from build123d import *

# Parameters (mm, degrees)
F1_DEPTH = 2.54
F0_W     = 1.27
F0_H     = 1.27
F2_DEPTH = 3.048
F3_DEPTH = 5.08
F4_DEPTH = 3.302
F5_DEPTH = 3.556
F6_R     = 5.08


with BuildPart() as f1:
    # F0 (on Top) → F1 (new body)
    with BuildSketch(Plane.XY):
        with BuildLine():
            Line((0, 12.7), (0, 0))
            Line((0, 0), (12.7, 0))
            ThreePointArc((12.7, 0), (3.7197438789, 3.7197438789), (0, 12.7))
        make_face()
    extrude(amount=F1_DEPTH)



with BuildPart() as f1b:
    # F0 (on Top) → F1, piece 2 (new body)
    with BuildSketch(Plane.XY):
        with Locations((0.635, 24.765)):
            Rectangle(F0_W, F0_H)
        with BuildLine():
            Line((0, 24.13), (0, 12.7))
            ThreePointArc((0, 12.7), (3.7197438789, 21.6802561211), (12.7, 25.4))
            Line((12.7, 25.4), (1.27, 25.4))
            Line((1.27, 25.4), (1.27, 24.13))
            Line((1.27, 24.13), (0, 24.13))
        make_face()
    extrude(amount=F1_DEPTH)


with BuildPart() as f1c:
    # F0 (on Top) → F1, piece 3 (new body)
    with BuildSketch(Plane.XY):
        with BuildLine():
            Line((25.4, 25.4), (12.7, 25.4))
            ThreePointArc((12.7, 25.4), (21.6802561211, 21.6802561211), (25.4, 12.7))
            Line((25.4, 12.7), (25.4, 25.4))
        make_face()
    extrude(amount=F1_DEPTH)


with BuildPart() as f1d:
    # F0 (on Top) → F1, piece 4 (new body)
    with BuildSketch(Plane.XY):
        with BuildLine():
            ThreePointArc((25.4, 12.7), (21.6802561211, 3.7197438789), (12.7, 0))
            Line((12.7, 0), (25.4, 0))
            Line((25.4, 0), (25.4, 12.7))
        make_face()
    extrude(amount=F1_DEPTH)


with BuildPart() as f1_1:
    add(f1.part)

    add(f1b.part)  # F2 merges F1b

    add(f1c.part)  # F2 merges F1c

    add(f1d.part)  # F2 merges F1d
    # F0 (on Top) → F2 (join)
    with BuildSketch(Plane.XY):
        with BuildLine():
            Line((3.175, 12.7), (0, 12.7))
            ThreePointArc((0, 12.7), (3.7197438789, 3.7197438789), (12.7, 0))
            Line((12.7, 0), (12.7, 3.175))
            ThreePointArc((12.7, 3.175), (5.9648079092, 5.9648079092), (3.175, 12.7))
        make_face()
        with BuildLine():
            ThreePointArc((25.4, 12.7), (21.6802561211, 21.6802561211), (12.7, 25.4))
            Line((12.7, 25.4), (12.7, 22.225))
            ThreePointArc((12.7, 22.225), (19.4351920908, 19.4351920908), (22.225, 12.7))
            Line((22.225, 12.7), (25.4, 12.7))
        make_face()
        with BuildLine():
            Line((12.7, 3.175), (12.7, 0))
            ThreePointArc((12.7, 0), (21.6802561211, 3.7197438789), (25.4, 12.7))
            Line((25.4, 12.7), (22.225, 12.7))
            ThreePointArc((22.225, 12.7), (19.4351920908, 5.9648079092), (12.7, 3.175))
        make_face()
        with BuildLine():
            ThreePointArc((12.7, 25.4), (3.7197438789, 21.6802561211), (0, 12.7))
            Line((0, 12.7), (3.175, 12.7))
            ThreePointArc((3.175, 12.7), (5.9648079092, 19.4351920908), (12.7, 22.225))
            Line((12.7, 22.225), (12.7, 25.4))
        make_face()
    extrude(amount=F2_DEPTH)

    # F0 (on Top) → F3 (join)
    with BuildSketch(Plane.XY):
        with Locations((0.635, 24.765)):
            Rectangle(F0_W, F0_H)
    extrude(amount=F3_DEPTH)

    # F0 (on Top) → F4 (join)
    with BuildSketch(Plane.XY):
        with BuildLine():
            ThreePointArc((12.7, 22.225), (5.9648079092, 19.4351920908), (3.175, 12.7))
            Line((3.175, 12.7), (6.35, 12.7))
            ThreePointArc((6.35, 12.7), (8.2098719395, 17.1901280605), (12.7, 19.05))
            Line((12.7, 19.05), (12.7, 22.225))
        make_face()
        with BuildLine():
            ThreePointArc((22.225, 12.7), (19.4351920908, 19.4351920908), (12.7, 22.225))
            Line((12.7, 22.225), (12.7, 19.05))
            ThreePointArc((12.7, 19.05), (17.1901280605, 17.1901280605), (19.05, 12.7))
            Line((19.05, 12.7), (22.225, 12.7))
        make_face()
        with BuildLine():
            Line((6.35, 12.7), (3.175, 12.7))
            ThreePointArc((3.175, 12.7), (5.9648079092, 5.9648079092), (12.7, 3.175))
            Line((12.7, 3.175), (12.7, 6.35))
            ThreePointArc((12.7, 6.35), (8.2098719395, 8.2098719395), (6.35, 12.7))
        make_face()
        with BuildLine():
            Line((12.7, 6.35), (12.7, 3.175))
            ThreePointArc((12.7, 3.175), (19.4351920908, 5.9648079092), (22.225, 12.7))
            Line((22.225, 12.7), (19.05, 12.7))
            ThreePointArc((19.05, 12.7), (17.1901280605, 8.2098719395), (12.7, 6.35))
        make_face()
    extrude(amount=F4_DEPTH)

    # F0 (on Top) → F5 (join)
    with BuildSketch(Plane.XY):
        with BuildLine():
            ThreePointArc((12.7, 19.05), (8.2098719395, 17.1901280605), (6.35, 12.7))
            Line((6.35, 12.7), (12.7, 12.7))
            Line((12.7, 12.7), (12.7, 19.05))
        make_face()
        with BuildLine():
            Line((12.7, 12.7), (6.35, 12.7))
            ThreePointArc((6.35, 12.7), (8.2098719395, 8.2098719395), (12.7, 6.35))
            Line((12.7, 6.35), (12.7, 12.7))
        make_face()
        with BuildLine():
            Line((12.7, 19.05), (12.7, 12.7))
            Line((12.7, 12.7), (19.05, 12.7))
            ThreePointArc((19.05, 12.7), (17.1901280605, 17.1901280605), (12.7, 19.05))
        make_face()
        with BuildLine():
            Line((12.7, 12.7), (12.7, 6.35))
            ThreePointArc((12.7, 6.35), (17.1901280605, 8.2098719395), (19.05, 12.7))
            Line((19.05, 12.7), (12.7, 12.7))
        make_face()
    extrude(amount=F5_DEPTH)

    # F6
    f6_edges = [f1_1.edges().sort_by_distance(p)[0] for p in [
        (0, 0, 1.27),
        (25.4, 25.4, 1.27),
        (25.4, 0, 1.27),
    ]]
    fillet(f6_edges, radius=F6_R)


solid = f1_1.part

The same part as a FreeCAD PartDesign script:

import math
import FreeCAD as App
import Part
import Sketcher

V = App.Vector
Q = App.Units.Quantity


def edges_at(feature, points):
    """Names of the edges that pass closest to the given points."""
    edges = feature.Shape.Edges
    near = lambda p: min(range(len(edges)), key=lambda i: edges[i].distToShape(Part.Vertex(*p))[0])
    return sorted({f"Edge{near(p) + 1}" for p in points})

doc = App.newDocument("Part")
params = doc.addObject("Spreadsheet::Sheet", "Params")
for row, (alias, value) in enumerate([
    ("sketch1_radius", "0.5 in"),
    ("pad1_length", "0.1 in"),
    ("sketch2_radius", "0.5 in"),
    ("pad2_length", "0.1 in"),
    ("sketch3_radius", "0.5 in"),
    ("pad3_length", "0.1 in"),
    ("sketch4_radius", "0.5 in"),
    ("pad4_length", "0.1 in"),
    ("sketch5_radius", "0.5 in"),
    ("sketch5_radius2", "0.375 in"),
    ("pad5_length", "0.12 in"),
    ("sketch6_width", "0.05 in"),
    ("pad6_length", "0.2 in"),
    ("sketch7_radius", "0.25 in"),
    ("sketch7_radius2", "0.375 in"),
    ("pad7_length", "0.13 in"),
    ("sketch8_radius", "0.25 in"),
    ("pad8_length", "0.14 in"),
    ("fillet_radius", "0.2 in"),
], start=1):
    params.set(f"A{row}", alias)
    params.set(f"B{row}", "=" + value)
    params.setAlias(f"B{row}", alias)

body = doc.addObject("PartDesign::Body", "Body")

# Sketch on XY plane
sketch1 = body.newObject("Sketcher::SketchObject", "Sketch")
sketch1.AttachmentSupport = (doc.getObject("XY_Plane"), [""])
sketch1.MapMode = "FlatFace"
sketch1.addGeometry([
    Part.LineSegment(V(0, 13, 0), V(0, 0, 0)),
    Part.LineSegment(V(0, 0, 0), V(13, 0, 0)),
    Part.ArcOfCircle(Part.Circle(V(13, 13, 0), V(0, 0, 1), 13), math.radians(180), math.radians(270)),
], False)
sketch1.addConstraint([
    Sketcher.Constraint("Coincident", 0, 2, 1, 1),
    Sketcher.Constraint("Tangent", 1, 2, 2, 2),
    Sketcher.Constraint("Tangent", 2, 1, 0, 1),
    Sketcher.Constraint("Vertical", 0),
    Sketcher.Constraint("Horizontal", 1),
    Sketcher.Constraint("Coincident", 0, 2, -1, 1),
    Sketcher.Constraint("Radius", 2, Q("0.5 in")),
])
sketch1.setExpression("Constraints[6]", "Params.sketch1_radius")
pad1 = body.newObject("PartDesign::Pad", "Pad")
pad1.Profile = sketch1
pad1.setExpression("Length", "Params.pad1_length")
body2 = doc.addObject("PartDesign::Body", "Body001")

# Sketch on XY plane
sketch2 = body2.newObject("Sketcher::SketchObject", "Sketch001")
sketch2.AttachmentSupport = (doc.getObject("XY_Plane001"), [""])
sketch2.MapMode = "FlatFace"
sketch2.addGeometry([
    Part.LineSegment(V(0, 25, 0), V(0, 13, 0)),
    Part.ArcOfCircle(Part.Circle(V(13, 13, 0), V(0, 0, 1), 13), math.radians(90), math.radians(180)),
    Part.LineSegment(V(13, 25, 0), V(0, 25, 0)),
], False)
sketch2.addConstraint([
    Sketcher.Constraint("Tangent", 0, 2, 1, 2),
    Sketcher.Constraint("Tangent", 1, 1, 2, 1),
    Sketcher.Constraint("Coincident", 2, 2, 0, 1),
    Sketcher.Constraint("Vertical", 0),
    Sketcher.Constraint("Horizontal", 2),
    Sketcher.Constraint("PointOnObject", 0, 2, -2),
    Sketcher.Constraint("Radius", 1, Q("0.5 in")),
    Sketcher.Constraint("DistanceY", -1, 1, 1, 1, Q("1 in")),
])
sketch2.setExpression("Constraints[6]", "Params.sketch2_radius")
pad2 = body2.newObject("PartDesign::Pad", "Pad001")
pad2.Profile = sketch2
pad2.setExpression("Length", "Params.pad2_length")
body3 = doc.addObject("PartDesign::Body", "Body002")

# Sketch on XY plane
sketch3 = body3.newObject("Sketcher::SketchObject", "Sketch002")
sketch3.AttachmentSupport = (doc.getObject("XY_Plane002"), [""])
sketch3.MapMode = "FlatFace"
sketch3.addGeometry([
    Part.LineSegment(V(25, 25, 0), V(13, 25, 0)),
    Part.ArcOfCircle(Part.Circle(V(13, 13, 0), V(0, 0, 1), 13), math.radians(0), math.radians(90)),
    Part.LineSegment(V(25, 13, 0), V(25, 25, 0)),
], False)
sketch3.addConstraint([
    Sketcher.Constraint("Tangent", 0, 2, 1, 2),
    Sketcher.Constraint("Tangent", 1, 1, 2, 1),
    Sketcher.Constraint("Coincident", 2, 2, 0, 1),
    Sketcher.Constraint("Horizontal", 0),
    Sketcher.Constraint("Vertical", 2),
    Sketcher.Constraint("Radius", 1, Q("0.5 in")),
    Sketcher.Constraint("DistanceY", -1, 1, 0, 2, Q("1 in")),
    Sketcher.Constraint("DistanceX", -1, 1, 1, 1, Q("1 in")),
])
sketch3.setExpression("Constraints[5]", "Params.sketch3_radius")
pad3 = body3.newObject("PartDesign::Pad", "Pad002")
pad3.Profile = sketch3
pad3.setExpression("Length", "Params.pad3_length")
body4 = doc.addObject("PartDesign::Body", "Body003")

# Sketch on XY plane
sketch4 = body4.newObject("Sketcher::SketchObject", "Sketch003")
sketch4.AttachmentSupport = (doc.getObject("XY_Plane003"), [""])
sketch4.MapMode = "FlatFace"
sketch4.addGeometry([
    Part.ArcOfCircle(Part.Circle(V(13, 13, 0), V(0, 0, 1), 13), math.radians(-90), math.radians(0)),
    Part.LineSegment(V(13, 0, 0), V(25, 0, 0)),
    Part.LineSegment(V(25, 0, 0), V(25, 13, 0)),
], False)
sketch4.addConstraint([
    Sketcher.Constraint("Tangent", 0, 1, 1, 1),
    Sketcher.Constraint("Coincident", 1, 2, 2, 1),
    Sketcher.Constraint("Tangent", 2, 2, 0, 2),
    Sketcher.Constraint("Horizontal", 1),
    Sketcher.Constraint("Vertical", 2),
    Sketcher.Constraint("PointOnObject", 0, 1, -1),
    Sketcher.Constraint("Radius", 0, Q("0.5 in")),
    Sketcher.Constraint("DistanceX", -1, 1, 1, 2, Q("1 in")),
])
sketch4.setExpression("Constraints[6]", "Params.sketch4_radius")
pad4 = body4.newObject("PartDesign::Pad", "Pad003")
pad4.Profile = sketch4
pad4.setExpression("Length", "Params.pad4_length")
body.AllowCompound = True
doc.recompute()

boolean = body.newObject("PartDesign::Boolean", "Boolean")
boolean.Type = "Fuse"
boolean.addObjects([body2])
doc.recompute()

boolean2 = body.newObject("PartDesign::Boolean", "Boolean001")
boolean2.Type = "Fuse"
boolean2.addObjects([body3])
doc.recompute()

boolean3 = body.newObject("PartDesign::Boolean", "Boolean002")
boolean3.Type = "Fuse"
boolean3.addObjects([body4])

# Sketch on XY plane
sketch5 = body.newObject("Sketcher::SketchObject", "Sketch004")
sketch5.AttachmentSupport = (doc.getObject("XY_Plane"), [""])
sketch5.MapMode = "FlatFace"
sketch5.addGeometry([
    Part.ArcOfCircle(Part.Circle(V(13, 13, 0), V(0, 0, 1), 13), math.radians(180), math.radians(270)),  # 0
    Part.ArcOfCircle(Part.Circle(V(13, 13, 0), V(0, 0, 1), 13), math.radians(-90), math.radians(0)),  # 1
    Part.ArcOfCircle(Part.Circle(V(13, 13, 0), V(0, 0, 1), 13), math.radians(0), math.radians(90)),  # 2
    Part.ArcOfCircle(Part.Circle(V(13, 13, 0), V(0, 0, 1), 13), math.radians(90), math.radians(180)),  # 3
    Part.ArcOfCircle(Part.Circle(V(13, 13, 0), V(0, 0, 1), 10), math.radians(0), math.radians(90)),  # 4
    Part.ArcOfCircle(Part.Circle(V(13, 13, 0), V(0, 0, 1), 10), math.radians(-90), math.radians(0)),  # 5
    Part.ArcOfCircle(Part.Circle(V(13, 13, 0), V(0, 0, 1), 10), math.radians(180), math.radians(270)),  # 6
    Part.ArcOfCircle(Part.Circle(V(13, 13, 0), V(0, 0, 1), 10), math.radians(90), math.radians(180)),  # 7
], False)
sketch5.addConstraint([
    Sketcher.Constraint("Tangent", 0, 2, 1, 1),
    Sketcher.Constraint("Tangent", 1, 2, 2, 1),
    Sketcher.Constraint("Tangent", 2, 2, 3, 1),
    Sketcher.Constraint("Tangent", 3, 2, 0, 1),
    Sketcher.Constraint("Tangent", 4, 1, 5, 2),
    Sketcher.Constraint("Tangent", 5, 1, 6, 2),
    Sketcher.Constraint("Tangent", 6, 1, 7, 2),
    Sketcher.Constraint("Tangent", 7, 1, 4, 2),
    Sketcher.Constraint("Coincident", 4, 3, 0, 3),
    Sketcher.Constraint("Equal", 0, 1),
    Sketcher.Constraint("Equal", 4, 5),
    Sketcher.Constraint("PointOnObject", 0, 2, -1),
    Sketcher.Constraint("PointOnObject", 3, 2, -2),
    Sketcher.Constraint("Horizontal", 7, 3, 1, 2),
    Sketcher.Constraint("Horizontal", 1, 2, 3, 2),
    Sketcher.Constraint("Horizontal", 3, 2, 4, 1),
    Sketcher.Constraint("Horizontal", 4, 1, 6, 1),
    Sketcher.Constraint("Vertical", 7, 3, 0, 2),
    Sketcher.Constraint("Vertical", 0, 2, 2, 2),
    Sketcher.Constraint("Vertical", 2, 2, 5, 1),
    Sketcher.Constraint("Vertical", 5, 1, 7, 1),
    Sketcher.Constraint("Radius", 0, Q("0.5 in")),
    Sketcher.Constraint("Radius", 4, Q("0.375 in")),
])
sketch5.setExpression("Constraints[21]", "Params.sketch5_radius")
sketch5.setExpression("Constraints[22]", "Params.sketch5_radius2")
pad5 = body.newObject("PartDesign::Pad", "Pad004")
pad5.Profile = sketch5
pad5.setExpression("Length", "Params.pad5_length")

# Sketch on XY plane
sketch6 = body.newObject("Sketcher::SketchObject", "Sketch005")
sketch6.AttachmentSupport = (doc.getObject("XY_Plane"), [""])
sketch6.MapMode = "FlatFace"
sketch6.addGeometry([
    Part.LineSegment(V(0, 25.4, 0), V(0, 24.1, 0)),
    Part.LineSegment(V(0, 24.1, 0), V(1.3, 24.1, 0)),
    Part.LineSegment(V(1.3, 24.1, 0), V(1.3, 25.4, 0)),
    Part.LineSegment(V(1.3, 25.4, 0), V(0, 25.4, 0)),
], False)
sketch6.addConstraint([
    Sketcher.Constraint("Coincident", 0, 2, 1, 1),
    Sketcher.Constraint("Coincident", 1, 2, 2, 1),
    Sketcher.Constraint("Coincident", 2, 2, 3, 1),
    Sketcher.Constraint("Coincident", 3, 2, 0, 1),
    Sketcher.Constraint("Vertical", 0),
    Sketcher.Constraint("Horizontal", 1),
    Sketcher.Constraint("Vertical", 2),
    Sketcher.Constraint("Horizontal", 3),
    Sketcher.Constraint("PointOnObject", 0, 2, -2),
    Sketcher.Constraint("Equal", 3, 0),
    Sketcher.Constraint("DistanceY", -1, 1, 2, 2, Q("1 in")),
    Sketcher.Constraint("DistanceX", 1, 1, 1, 2, Q("0.05 in")),
])
sketch6.setExpression("Constraints[11]", "Params.sketch6_width")
pad6 = body.newObject("PartDesign::Pad", "Pad005")
pad6.Profile = sketch6
pad6.setExpression("Length", "Params.pad6_length")

# Sketch on XY plane
sketch7 = body.newObject("Sketcher::SketchObject", "Sketch006")
sketch7.AttachmentSupport = (doc.getObject("XY_Plane"), [""])
sketch7.MapMode = "FlatFace"
sketch7.addGeometry([
    Part.ArcOfCircle(Part.Circle(V(13, 13, 0), V(0, 0, 1), 10), math.radians(90), math.radians(180)),  # 0
    Part.ArcOfCircle(Part.Circle(V(13, 13, 0), V(0, 0, 1), 10), math.radians(180), math.radians(270)),  # 1
    Part.ArcOfCircle(Part.Circle(V(13, 13, 0), V(0, 0, 1), 10), math.radians(-90), math.radians(0)),  # 2
    Part.ArcOfCircle(Part.Circle(V(13, 13, 0), V(0, 0, 1), 10), math.radians(0), math.radians(90)),  # 3
    Part.ArcOfCircle(Part.Circle(V(13, 13, 0), V(0, 0, 1), 6), math.radians(180), math.radians(270)),  # 4
    Part.ArcOfCircle(Part.Circle(V(13, 13, 0), V(0, 0, 1), 6), math.radians(90), math.radians(180)),  # 5
    Part.ArcOfCircle(Part.Circle(V(13, 13, 0), V(0, 0, 1), 6), math.radians(0), math.radians(90)),  # 6
    Part.ArcOfCircle(Part.Circle(V(13, 13, 0), V(0, 0, 1), 6), math.radians(-90), math.radians(0)),  # 7
], False)
sketch7.addConstraint([
    Sketcher.Constraint("Tangent", 0, 2, 1, 1),
    Sketcher.Constraint("Tangent", 1, 2, 2, 1),
    Sketcher.Constraint("Tangent", 2, 2, 3, 1),
    Sketcher.Constraint("Tangent", 3, 2, 0, 1),
    Sketcher.Constraint("Tangent", 4, 1, 5, 2),
    Sketcher.Constraint("Tangent", 5, 1, 6, 2),
    Sketcher.Constraint("Tangent", 6, 1, 7, 2),
    Sketcher.Constraint("Tangent", 7, 1, 4, 2),
    Sketcher.Constraint("Coincident", 4, 3, 0, 3),
    Sketcher.Constraint("Equal", 0, 1),
    Sketcher.Constraint("Equal", 4, 5),
    Sketcher.Constraint("Horizontal", 7, 3, 0, 2),
    Sketcher.Constraint("Horizontal", 0, 2, 2, 2),
    Sketcher.Constraint("Horizontal", 2, 2, 4, 1),
    Sketcher.Constraint("Horizontal", 4, 1, 6, 1),
    Sketcher.Constraint("Vertical", 7, 3, 1, 2),
    Sketcher.Constraint("Vertical", 1, 2, 3, 2),
    Sketcher.Constraint("Vertical", 3, 2, 5, 1),
    Sketcher.Constraint("Vertical", 5, 1, 7, 1),
    Sketcher.Constraint("Radius", 4, Q("0.25 in")),
    Sketcher.Constraint("Radius", 0, Q("0.375 in")),
    Sketcher.Constraint("DistanceX", -1, 1, 0, 3, Q("0.5 in")),
    Sketcher.Constraint("DistanceY", -1, 1, 0, 3, Q("0.5 in")),
])
sketch7.setExpression("Constraints[19]", "Params.sketch7_radius")
sketch7.setExpression("Constraints[20]", "Params.sketch7_radius2")
pad7 = body.newObject("PartDesign::Pad", "Pad006")
pad7.Profile = sketch7
pad7.setExpression("Length", "Params.pad7_length")

# Sketch on XY plane
sketch8 = body.newObject("Sketcher::SketchObject", "Sketch007")
sketch8.AttachmentSupport = (doc.getObject("XY_Plane"), [""])
sketch8.MapMode = "FlatFace"
sketch8.addGeometry([
    Part.ArcOfCircle(Part.Circle(V(13, 13, 0), V(0, 0, 1), 6), math.radians(90), math.radians(180)),
    Part.ArcOfCircle(Part.Circle(V(13, 13, 0), V(0, 0, 1), 6), math.radians(180), math.radians(270)),
    Part.ArcOfCircle(Part.Circle(V(13, 13, 0), V(0, 0, 1), 6), math.radians(-90), math.radians(0)),
    Part.ArcOfCircle(Part.Circle(V(13, 13, 0), V(0, 0, 1), 6), math.radians(0), math.radians(90)),
], False)
sketch8.addConstraint([
    Sketcher.Constraint("Tangent", 0, 2, 1, 1),
    Sketcher.Constraint("Tangent", 1, 2, 2, 1),
    Sketcher.Constraint("Tangent", 2, 2, 3, 1),
    Sketcher.Constraint("Tangent", 3, 2, 0, 1),
    Sketcher.Constraint("Equal", 0, 1),
    Sketcher.Constraint("Horizontal", 3, 3, 0, 2),
    Sketcher.Constraint("Horizontal", 0, 2, 2, 2),
    Sketcher.Constraint("Vertical", 3, 3, 1, 2),
    Sketcher.Constraint("Vertical", 1, 2, 3, 2),
    Sketcher.Constraint("Radius", 0, Q("0.25 in")),
    Sketcher.Constraint("DistanceX", -1, 1, 0, 3, Q("0.5 in")),
    Sketcher.Constraint("DistanceY", -1, 1, 0, 3, Q("0.5 in")),
])
sketch8.setExpression("Constraints[9]", "Params.sketch8_radius")
pad8 = body.newObject("PartDesign::Pad", "Pad007")
pad8.Profile = sketch8
pad8.setExpression("Length", "Params.pad8_length")
doc.recompute()

fillet = body.newObject("PartDesign::Fillet", "Fillet")
fillet.Base = (pad8, edges_at(pad8, [(0, 0, 1.27), (25.4, 25.4, 1.27), (25.4, 0, 1.27)]))
fillet.setExpression("Radius", "Params.fillet_radius")

doc.recompute()
